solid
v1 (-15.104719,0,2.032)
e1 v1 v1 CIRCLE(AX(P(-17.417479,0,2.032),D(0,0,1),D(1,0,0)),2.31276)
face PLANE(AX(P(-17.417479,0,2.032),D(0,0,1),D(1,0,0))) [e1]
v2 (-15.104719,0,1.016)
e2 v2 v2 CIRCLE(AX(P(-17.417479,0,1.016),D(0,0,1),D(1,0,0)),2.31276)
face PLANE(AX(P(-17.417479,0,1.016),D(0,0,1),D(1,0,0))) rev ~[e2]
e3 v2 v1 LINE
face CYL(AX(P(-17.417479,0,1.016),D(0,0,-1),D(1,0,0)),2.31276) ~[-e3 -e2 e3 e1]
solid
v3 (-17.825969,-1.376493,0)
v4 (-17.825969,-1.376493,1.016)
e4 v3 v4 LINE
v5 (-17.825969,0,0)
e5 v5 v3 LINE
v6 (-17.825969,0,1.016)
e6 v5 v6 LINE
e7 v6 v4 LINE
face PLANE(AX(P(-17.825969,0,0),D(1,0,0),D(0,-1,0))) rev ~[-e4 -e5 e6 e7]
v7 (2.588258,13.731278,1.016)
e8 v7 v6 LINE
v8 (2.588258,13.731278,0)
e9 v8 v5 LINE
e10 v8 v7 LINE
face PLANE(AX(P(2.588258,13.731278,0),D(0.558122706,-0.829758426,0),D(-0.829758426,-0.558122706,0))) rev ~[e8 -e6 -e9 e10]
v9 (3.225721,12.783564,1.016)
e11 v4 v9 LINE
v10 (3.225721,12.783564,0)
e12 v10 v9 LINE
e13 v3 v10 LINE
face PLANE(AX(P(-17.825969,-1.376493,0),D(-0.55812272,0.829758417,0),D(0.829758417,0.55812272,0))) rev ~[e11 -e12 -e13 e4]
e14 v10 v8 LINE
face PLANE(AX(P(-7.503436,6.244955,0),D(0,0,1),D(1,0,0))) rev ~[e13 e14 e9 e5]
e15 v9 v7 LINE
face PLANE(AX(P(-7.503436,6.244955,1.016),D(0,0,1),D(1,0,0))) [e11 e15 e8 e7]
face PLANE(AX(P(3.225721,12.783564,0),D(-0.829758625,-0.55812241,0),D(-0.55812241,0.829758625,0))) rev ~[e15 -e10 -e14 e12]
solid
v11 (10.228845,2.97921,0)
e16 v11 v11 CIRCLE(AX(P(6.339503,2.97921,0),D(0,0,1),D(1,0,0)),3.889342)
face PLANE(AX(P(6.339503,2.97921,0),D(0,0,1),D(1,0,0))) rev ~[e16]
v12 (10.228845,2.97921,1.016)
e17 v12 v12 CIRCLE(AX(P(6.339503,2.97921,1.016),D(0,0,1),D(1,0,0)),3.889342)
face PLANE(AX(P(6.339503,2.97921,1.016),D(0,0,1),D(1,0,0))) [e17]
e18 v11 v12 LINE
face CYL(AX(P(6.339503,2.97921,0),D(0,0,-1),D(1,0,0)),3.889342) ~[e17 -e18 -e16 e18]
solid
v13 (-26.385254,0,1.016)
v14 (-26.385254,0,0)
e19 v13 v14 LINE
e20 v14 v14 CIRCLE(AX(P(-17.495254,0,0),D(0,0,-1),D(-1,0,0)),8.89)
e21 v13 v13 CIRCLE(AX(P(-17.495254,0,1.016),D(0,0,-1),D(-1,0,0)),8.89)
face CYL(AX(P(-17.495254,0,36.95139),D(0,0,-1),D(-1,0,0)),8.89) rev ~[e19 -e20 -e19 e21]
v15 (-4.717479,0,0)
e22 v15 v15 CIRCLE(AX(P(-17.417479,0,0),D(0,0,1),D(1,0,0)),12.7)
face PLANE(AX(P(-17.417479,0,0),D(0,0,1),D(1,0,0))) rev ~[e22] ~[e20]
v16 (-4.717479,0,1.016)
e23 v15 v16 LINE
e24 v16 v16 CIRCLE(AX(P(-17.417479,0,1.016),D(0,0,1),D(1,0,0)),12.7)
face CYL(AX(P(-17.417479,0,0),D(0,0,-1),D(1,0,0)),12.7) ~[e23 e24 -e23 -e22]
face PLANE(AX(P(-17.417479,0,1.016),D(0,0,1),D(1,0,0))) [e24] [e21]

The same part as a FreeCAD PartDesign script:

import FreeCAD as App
import Part
import Sketcher
Q = App.Units.Quantity


def add_polygon(sketch, points):
    """Adds a closed chain of lines whose ends are joined by coincident constraints."""
    first, n = sketch.GeometryCount, len(points)
    for a, b in zip(points, points[1:] + points[:1]):
        sketch.addGeometry(Part.LineSegment(App.Vector(*a, 0), App.Vector(*b, 0)), False)
    for i in range(n):
        sketch.addConstraint(Sketcher.Constraint("Coincident", first + i, 2, first + (i + 1) % n, 1))

doc = App.newDocument("Part")
body = doc.addObject("PartDesign::Body", "Body")

sketch1 = body.newObject("Sketcher::SketchObject", "Sketch")
sketch1.AttachmentSupport = (doc.getObject("XY_Plane"), [""])
sketch1.MapMode = "FlatFace"
sketch1.addGeometry(Part.Circle(App.Vector(-17, 0, 0), App.Vector(0, 0, 1), 13), False)
sketch1.addConstraint(Sketcher.Constraint("PointOnObject", 0, 3, -1))
sketch1.addConstraint(Sketcher.Constraint("Diameter", 0, Q("1 in")))
sketch1.addConstraint(Sketcher.Constraint("DistanceX", 0, 3, -1, 1, 17.417479))
pad1 = body.newObject("PartDesign::Pad", "Pad")
pad1.Profile = sketch1
pad1.Length = Q("0.04 in")

sketch2 = body.newObject("Sketcher::SketchObject", "Sketch001")
sketch2.AttachmentSupport = (doc.getObject("XY_Plane"), [""])
sketch2.MapMode = "FlatFace"
sketch2.AttachmentOffset = App.Placement(App.Vector(0, 0, 0.04 * 25.4), App.Rotation())
sketch2.addGeometry(Part.Circle(App.Vector(-17, 0, 0), App.Vector(0, 0, 1), 9), False)
sketch2.addConstraint(Sketcher.Constraint("PointOnObject", 0, 3, -1))
sketch2.addConstraint(Sketcher.Constraint("Diameter", 0, Q("0.7 in")))
sketch2.addConstraint(Sketcher.Constraint("DistanceX", 0, 3, -1, 1, 17.495254))
doc.recompute()
hole = body.newObject("PartDesign::Hole", "Hole")
hole.Profile = sketch2
hole.ThreadType = "None"
hole.Diameter = Q("0.7 in")
hole.DepthType = "ThroughAll"
body2 = doc.addObject("PartDesign::Body", "Body001")

sketch3 = body2.newObject("Sketcher::SketchObject", "Sketch002")
sketch3.AttachmentSupport = (doc.getObject("XY_Plane001"), [""])
sketch3.MapMode = "FlatFace"
sketch3.AttachmentOffset = App.Placement(App.Vector(0, 0, 0.04 * 25.4), App.Rotation())
sketch3.addGeometry(Part.Circle(App.Vector(-17.4, 0, 0), App.Vector(0, 0, 1), 2.3), False)
sketch3.addConstraint(Sketcher.Constraint("PointOnObject", 0, 3, -1))
sketch3.addConstraint(Sketcher.Constraint("Diameter", 0, 4.62552))
sketch3.addConstraint(Sketcher.Constraint("DistanceX", 0, 3, -1, 1, 17.417479))
pad2 = body2.newObject("PartDesign::Pad", "Pad001")
pad2.Profile = sketch3
pad2.Length = Q("0.04 in")
body3 = doc.addObject("PartDesign::Body", "Body002")

sketch4 = body3.newObject("Sketcher::SketchObject", "Sketch003")
sketch4.AttachmentSupport = (doc.getObject("XY_Plane002"), [""])
sketch4.MapMode = "FlatFace"
sketch4.addGeometry(Part.Circle(App.Vector(6.3, 3, 0), App.Vector(0, 0, 1), 3.9), False)
sketch4.addConstraint(Sketcher.Constraint("Diameter", 0, 7.778684))
sketch4.addConstraint(Sketcher.Constraint("DistanceY", -1, 1, 0, 3, 2.97921))
sketch4.addConstraint(Sketcher.Constraint("DistanceX", -1, 1, 0, 3, 6.339503))
pad3 = body3.newObject("PartDesign::Pad", "Pad002")
pad3.Profile = sketch4
pad3.Length = Q("0.04 in")
body4 = doc.addObject("PartDesign::Body", "Body003")

sketch5 = body4.newObject("Sketcher::SketchObject", "Sketch004")
sketch5.AttachmentSupport = (doc.getObject("XY_Plane003"), [""])
sketch5.MapMode = "FlatFace"
add_polygon(sketch5, [(2.6, 13.7), (-17.8, 0), (-17.8, -1.4), (3.2, 12.8)])
sketch5.addConstraint(Sketcher.Constraint("Vertical", 1))
sketch5.addConstraint(Sketcher.Constraint("PointOnObject", 0, 2, -1))
sketch5.addConstraint(Sketcher.Constraint("Parallel", 0, 2))
sketch5.addConstraint(Sketcher.Constraint("Perpendicular", 2, 3))
sketch5.addConstraint(Sketcher.Constraint("DistanceX", -1, 1, 3, 2, Q("0.1018999 in")))
sketch5.addConstraint(Sketcher.Constraint("DistanceY", 1, 2, 1, 1, 1.376493))
sketch5.addConstraint(Sketcher.Constraint("DistanceX", 0, 2, -1, 1, 17.825969))
sketch5.addConstraint(Sketcher.Constraint("DistanceX", -1, 1, 2, 2, 3.225721))
pad4 = body4.newObject("PartDesign::Pad", "Pad003")
pad4.Profile = sketch5
pad4.Length = Q("0.04 in")

doc.recompute()
